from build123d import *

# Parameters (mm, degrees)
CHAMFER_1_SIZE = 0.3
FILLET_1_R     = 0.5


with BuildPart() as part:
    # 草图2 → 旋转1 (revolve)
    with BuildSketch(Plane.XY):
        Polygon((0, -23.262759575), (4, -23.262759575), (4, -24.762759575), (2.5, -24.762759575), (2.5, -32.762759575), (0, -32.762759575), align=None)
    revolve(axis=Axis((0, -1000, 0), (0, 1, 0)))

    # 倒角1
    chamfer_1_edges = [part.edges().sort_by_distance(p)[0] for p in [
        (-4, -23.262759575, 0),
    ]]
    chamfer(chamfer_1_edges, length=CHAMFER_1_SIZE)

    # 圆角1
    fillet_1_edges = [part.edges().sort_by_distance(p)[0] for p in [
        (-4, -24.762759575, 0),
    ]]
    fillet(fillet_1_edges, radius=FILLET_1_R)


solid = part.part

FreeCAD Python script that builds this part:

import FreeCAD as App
import Part
import Sketcher


def edges_at(feature, points):
    """Names of the edges that pass closest to the given points."""
    edges = feature.Shape.Edges
    near = lambda p: min(range(len(edges)), key=lambda i: edges[i].distToShape(Part.Vertex(*p))[0])
    return sorted({f"Edge{near(p) + 1}" for p in points})

doc = App.newDocument("Part")
body = doc.addObject("PartDesign::Body", "Body")

sketch1 = doc.addObject("Sketcher::SketchObject", "Sketch")
body.addObject(sketch1)
sketch1.AttachmentSupport = (doc.XY_Plane, [""])
sketch1.MapMode = "FlatFace"
sketch1.addGeometry([
    Part.LineSegment(App.Vector(4, -23.3, 0), App.Vector(0, -23.3, 0)),
    Part.LineSegment(App.Vector(0, -23.3, 0), App.Vector(0, -32.8, 0)),
    Part.LineSegment(App.Vector(0, -32.8, 0), App.Vector(2.5, -32.8, 0)),
    Part.LineSegment(App.Vector(2.5, -32.8, 0), App.Vector(2.5, -24.8, 0)),
    Part.LineSegment(App.Vector(2.5, -24.8, 0), App.Vector(4, -24.8, 0)),
    Part.LineSegment(App.Vector(4, -24.8, 0), App.Vector(4, -23.3, 0)),
], False)
sketch1.addConstraint([
    Sketcher.Constraint("Coincident", 0, 2, 1, 1),
    Sketcher.Constraint("Coincident", 1, 2, 2, 1),
    Sketcher.Constraint("Coincident", 2, 2, 3, 1),
    Sketcher.Constraint("Coincident", 3, 2, 4, 1),
    Sketcher.Constraint("Coincident", 4, 2, 5, 1),
    Sketcher.Constraint("Coincident", 5, 2, 0, 1),
    Sketcher.Constraint("Horizontal", 0),
    Sketcher.Constraint("Vertical", 1),
    Sketcher.Constraint("Horizontal", 2),
    Sketcher.Constraint("Vertical", 3),
    Sketcher.Constraint("Horizontal", 4),
    Sketcher.Constraint("Vertical", 5),
    Sketcher.Constraint("PointOnObject", 0, 2, -2),
    Sketcher.Constraint("Equal", 4, 5),
    Sketcher.Constraint("DistanceX", 0, 2, 0, 1, 4.0),
    Sketcher.Constraint("DistanceY", 3, 1, 3, 2, 8.0),
    Sketcher.Constraint("DistanceX", 2, 1, 2, 2, 2.5),
    Sketcher.Constraint("DistanceY", 0, 2, -1, 1, 23.26276),
])
revolution = doc.addObject("PartDesign::Revolution", "Revolution")
body.addObject(revolution)
revolution.Profile = sketch1
revolution.ReferenceAxis = (sketch1, ["V_Axis"])
revolution.Angle = 360
doc.recompute()

chamfer = doc.addObject("PartDesign::Chamfer", "Chamfer")
body.addObject(chamfer)
chamfer.Base = (revolution, edges_at(revolution, [(-4, -23.263, 0)]))
chamfer.Size = 0.3
doc.recompute()

fillet = doc.addObject("PartDesign::Fillet", "Fillet")
body.addObject(fillet)
fillet.Base = (chamfer, edges_at(chamfer, [(-4, -24.763, 0)]))
fillet.Radius = 0.5

doc.recompute()
